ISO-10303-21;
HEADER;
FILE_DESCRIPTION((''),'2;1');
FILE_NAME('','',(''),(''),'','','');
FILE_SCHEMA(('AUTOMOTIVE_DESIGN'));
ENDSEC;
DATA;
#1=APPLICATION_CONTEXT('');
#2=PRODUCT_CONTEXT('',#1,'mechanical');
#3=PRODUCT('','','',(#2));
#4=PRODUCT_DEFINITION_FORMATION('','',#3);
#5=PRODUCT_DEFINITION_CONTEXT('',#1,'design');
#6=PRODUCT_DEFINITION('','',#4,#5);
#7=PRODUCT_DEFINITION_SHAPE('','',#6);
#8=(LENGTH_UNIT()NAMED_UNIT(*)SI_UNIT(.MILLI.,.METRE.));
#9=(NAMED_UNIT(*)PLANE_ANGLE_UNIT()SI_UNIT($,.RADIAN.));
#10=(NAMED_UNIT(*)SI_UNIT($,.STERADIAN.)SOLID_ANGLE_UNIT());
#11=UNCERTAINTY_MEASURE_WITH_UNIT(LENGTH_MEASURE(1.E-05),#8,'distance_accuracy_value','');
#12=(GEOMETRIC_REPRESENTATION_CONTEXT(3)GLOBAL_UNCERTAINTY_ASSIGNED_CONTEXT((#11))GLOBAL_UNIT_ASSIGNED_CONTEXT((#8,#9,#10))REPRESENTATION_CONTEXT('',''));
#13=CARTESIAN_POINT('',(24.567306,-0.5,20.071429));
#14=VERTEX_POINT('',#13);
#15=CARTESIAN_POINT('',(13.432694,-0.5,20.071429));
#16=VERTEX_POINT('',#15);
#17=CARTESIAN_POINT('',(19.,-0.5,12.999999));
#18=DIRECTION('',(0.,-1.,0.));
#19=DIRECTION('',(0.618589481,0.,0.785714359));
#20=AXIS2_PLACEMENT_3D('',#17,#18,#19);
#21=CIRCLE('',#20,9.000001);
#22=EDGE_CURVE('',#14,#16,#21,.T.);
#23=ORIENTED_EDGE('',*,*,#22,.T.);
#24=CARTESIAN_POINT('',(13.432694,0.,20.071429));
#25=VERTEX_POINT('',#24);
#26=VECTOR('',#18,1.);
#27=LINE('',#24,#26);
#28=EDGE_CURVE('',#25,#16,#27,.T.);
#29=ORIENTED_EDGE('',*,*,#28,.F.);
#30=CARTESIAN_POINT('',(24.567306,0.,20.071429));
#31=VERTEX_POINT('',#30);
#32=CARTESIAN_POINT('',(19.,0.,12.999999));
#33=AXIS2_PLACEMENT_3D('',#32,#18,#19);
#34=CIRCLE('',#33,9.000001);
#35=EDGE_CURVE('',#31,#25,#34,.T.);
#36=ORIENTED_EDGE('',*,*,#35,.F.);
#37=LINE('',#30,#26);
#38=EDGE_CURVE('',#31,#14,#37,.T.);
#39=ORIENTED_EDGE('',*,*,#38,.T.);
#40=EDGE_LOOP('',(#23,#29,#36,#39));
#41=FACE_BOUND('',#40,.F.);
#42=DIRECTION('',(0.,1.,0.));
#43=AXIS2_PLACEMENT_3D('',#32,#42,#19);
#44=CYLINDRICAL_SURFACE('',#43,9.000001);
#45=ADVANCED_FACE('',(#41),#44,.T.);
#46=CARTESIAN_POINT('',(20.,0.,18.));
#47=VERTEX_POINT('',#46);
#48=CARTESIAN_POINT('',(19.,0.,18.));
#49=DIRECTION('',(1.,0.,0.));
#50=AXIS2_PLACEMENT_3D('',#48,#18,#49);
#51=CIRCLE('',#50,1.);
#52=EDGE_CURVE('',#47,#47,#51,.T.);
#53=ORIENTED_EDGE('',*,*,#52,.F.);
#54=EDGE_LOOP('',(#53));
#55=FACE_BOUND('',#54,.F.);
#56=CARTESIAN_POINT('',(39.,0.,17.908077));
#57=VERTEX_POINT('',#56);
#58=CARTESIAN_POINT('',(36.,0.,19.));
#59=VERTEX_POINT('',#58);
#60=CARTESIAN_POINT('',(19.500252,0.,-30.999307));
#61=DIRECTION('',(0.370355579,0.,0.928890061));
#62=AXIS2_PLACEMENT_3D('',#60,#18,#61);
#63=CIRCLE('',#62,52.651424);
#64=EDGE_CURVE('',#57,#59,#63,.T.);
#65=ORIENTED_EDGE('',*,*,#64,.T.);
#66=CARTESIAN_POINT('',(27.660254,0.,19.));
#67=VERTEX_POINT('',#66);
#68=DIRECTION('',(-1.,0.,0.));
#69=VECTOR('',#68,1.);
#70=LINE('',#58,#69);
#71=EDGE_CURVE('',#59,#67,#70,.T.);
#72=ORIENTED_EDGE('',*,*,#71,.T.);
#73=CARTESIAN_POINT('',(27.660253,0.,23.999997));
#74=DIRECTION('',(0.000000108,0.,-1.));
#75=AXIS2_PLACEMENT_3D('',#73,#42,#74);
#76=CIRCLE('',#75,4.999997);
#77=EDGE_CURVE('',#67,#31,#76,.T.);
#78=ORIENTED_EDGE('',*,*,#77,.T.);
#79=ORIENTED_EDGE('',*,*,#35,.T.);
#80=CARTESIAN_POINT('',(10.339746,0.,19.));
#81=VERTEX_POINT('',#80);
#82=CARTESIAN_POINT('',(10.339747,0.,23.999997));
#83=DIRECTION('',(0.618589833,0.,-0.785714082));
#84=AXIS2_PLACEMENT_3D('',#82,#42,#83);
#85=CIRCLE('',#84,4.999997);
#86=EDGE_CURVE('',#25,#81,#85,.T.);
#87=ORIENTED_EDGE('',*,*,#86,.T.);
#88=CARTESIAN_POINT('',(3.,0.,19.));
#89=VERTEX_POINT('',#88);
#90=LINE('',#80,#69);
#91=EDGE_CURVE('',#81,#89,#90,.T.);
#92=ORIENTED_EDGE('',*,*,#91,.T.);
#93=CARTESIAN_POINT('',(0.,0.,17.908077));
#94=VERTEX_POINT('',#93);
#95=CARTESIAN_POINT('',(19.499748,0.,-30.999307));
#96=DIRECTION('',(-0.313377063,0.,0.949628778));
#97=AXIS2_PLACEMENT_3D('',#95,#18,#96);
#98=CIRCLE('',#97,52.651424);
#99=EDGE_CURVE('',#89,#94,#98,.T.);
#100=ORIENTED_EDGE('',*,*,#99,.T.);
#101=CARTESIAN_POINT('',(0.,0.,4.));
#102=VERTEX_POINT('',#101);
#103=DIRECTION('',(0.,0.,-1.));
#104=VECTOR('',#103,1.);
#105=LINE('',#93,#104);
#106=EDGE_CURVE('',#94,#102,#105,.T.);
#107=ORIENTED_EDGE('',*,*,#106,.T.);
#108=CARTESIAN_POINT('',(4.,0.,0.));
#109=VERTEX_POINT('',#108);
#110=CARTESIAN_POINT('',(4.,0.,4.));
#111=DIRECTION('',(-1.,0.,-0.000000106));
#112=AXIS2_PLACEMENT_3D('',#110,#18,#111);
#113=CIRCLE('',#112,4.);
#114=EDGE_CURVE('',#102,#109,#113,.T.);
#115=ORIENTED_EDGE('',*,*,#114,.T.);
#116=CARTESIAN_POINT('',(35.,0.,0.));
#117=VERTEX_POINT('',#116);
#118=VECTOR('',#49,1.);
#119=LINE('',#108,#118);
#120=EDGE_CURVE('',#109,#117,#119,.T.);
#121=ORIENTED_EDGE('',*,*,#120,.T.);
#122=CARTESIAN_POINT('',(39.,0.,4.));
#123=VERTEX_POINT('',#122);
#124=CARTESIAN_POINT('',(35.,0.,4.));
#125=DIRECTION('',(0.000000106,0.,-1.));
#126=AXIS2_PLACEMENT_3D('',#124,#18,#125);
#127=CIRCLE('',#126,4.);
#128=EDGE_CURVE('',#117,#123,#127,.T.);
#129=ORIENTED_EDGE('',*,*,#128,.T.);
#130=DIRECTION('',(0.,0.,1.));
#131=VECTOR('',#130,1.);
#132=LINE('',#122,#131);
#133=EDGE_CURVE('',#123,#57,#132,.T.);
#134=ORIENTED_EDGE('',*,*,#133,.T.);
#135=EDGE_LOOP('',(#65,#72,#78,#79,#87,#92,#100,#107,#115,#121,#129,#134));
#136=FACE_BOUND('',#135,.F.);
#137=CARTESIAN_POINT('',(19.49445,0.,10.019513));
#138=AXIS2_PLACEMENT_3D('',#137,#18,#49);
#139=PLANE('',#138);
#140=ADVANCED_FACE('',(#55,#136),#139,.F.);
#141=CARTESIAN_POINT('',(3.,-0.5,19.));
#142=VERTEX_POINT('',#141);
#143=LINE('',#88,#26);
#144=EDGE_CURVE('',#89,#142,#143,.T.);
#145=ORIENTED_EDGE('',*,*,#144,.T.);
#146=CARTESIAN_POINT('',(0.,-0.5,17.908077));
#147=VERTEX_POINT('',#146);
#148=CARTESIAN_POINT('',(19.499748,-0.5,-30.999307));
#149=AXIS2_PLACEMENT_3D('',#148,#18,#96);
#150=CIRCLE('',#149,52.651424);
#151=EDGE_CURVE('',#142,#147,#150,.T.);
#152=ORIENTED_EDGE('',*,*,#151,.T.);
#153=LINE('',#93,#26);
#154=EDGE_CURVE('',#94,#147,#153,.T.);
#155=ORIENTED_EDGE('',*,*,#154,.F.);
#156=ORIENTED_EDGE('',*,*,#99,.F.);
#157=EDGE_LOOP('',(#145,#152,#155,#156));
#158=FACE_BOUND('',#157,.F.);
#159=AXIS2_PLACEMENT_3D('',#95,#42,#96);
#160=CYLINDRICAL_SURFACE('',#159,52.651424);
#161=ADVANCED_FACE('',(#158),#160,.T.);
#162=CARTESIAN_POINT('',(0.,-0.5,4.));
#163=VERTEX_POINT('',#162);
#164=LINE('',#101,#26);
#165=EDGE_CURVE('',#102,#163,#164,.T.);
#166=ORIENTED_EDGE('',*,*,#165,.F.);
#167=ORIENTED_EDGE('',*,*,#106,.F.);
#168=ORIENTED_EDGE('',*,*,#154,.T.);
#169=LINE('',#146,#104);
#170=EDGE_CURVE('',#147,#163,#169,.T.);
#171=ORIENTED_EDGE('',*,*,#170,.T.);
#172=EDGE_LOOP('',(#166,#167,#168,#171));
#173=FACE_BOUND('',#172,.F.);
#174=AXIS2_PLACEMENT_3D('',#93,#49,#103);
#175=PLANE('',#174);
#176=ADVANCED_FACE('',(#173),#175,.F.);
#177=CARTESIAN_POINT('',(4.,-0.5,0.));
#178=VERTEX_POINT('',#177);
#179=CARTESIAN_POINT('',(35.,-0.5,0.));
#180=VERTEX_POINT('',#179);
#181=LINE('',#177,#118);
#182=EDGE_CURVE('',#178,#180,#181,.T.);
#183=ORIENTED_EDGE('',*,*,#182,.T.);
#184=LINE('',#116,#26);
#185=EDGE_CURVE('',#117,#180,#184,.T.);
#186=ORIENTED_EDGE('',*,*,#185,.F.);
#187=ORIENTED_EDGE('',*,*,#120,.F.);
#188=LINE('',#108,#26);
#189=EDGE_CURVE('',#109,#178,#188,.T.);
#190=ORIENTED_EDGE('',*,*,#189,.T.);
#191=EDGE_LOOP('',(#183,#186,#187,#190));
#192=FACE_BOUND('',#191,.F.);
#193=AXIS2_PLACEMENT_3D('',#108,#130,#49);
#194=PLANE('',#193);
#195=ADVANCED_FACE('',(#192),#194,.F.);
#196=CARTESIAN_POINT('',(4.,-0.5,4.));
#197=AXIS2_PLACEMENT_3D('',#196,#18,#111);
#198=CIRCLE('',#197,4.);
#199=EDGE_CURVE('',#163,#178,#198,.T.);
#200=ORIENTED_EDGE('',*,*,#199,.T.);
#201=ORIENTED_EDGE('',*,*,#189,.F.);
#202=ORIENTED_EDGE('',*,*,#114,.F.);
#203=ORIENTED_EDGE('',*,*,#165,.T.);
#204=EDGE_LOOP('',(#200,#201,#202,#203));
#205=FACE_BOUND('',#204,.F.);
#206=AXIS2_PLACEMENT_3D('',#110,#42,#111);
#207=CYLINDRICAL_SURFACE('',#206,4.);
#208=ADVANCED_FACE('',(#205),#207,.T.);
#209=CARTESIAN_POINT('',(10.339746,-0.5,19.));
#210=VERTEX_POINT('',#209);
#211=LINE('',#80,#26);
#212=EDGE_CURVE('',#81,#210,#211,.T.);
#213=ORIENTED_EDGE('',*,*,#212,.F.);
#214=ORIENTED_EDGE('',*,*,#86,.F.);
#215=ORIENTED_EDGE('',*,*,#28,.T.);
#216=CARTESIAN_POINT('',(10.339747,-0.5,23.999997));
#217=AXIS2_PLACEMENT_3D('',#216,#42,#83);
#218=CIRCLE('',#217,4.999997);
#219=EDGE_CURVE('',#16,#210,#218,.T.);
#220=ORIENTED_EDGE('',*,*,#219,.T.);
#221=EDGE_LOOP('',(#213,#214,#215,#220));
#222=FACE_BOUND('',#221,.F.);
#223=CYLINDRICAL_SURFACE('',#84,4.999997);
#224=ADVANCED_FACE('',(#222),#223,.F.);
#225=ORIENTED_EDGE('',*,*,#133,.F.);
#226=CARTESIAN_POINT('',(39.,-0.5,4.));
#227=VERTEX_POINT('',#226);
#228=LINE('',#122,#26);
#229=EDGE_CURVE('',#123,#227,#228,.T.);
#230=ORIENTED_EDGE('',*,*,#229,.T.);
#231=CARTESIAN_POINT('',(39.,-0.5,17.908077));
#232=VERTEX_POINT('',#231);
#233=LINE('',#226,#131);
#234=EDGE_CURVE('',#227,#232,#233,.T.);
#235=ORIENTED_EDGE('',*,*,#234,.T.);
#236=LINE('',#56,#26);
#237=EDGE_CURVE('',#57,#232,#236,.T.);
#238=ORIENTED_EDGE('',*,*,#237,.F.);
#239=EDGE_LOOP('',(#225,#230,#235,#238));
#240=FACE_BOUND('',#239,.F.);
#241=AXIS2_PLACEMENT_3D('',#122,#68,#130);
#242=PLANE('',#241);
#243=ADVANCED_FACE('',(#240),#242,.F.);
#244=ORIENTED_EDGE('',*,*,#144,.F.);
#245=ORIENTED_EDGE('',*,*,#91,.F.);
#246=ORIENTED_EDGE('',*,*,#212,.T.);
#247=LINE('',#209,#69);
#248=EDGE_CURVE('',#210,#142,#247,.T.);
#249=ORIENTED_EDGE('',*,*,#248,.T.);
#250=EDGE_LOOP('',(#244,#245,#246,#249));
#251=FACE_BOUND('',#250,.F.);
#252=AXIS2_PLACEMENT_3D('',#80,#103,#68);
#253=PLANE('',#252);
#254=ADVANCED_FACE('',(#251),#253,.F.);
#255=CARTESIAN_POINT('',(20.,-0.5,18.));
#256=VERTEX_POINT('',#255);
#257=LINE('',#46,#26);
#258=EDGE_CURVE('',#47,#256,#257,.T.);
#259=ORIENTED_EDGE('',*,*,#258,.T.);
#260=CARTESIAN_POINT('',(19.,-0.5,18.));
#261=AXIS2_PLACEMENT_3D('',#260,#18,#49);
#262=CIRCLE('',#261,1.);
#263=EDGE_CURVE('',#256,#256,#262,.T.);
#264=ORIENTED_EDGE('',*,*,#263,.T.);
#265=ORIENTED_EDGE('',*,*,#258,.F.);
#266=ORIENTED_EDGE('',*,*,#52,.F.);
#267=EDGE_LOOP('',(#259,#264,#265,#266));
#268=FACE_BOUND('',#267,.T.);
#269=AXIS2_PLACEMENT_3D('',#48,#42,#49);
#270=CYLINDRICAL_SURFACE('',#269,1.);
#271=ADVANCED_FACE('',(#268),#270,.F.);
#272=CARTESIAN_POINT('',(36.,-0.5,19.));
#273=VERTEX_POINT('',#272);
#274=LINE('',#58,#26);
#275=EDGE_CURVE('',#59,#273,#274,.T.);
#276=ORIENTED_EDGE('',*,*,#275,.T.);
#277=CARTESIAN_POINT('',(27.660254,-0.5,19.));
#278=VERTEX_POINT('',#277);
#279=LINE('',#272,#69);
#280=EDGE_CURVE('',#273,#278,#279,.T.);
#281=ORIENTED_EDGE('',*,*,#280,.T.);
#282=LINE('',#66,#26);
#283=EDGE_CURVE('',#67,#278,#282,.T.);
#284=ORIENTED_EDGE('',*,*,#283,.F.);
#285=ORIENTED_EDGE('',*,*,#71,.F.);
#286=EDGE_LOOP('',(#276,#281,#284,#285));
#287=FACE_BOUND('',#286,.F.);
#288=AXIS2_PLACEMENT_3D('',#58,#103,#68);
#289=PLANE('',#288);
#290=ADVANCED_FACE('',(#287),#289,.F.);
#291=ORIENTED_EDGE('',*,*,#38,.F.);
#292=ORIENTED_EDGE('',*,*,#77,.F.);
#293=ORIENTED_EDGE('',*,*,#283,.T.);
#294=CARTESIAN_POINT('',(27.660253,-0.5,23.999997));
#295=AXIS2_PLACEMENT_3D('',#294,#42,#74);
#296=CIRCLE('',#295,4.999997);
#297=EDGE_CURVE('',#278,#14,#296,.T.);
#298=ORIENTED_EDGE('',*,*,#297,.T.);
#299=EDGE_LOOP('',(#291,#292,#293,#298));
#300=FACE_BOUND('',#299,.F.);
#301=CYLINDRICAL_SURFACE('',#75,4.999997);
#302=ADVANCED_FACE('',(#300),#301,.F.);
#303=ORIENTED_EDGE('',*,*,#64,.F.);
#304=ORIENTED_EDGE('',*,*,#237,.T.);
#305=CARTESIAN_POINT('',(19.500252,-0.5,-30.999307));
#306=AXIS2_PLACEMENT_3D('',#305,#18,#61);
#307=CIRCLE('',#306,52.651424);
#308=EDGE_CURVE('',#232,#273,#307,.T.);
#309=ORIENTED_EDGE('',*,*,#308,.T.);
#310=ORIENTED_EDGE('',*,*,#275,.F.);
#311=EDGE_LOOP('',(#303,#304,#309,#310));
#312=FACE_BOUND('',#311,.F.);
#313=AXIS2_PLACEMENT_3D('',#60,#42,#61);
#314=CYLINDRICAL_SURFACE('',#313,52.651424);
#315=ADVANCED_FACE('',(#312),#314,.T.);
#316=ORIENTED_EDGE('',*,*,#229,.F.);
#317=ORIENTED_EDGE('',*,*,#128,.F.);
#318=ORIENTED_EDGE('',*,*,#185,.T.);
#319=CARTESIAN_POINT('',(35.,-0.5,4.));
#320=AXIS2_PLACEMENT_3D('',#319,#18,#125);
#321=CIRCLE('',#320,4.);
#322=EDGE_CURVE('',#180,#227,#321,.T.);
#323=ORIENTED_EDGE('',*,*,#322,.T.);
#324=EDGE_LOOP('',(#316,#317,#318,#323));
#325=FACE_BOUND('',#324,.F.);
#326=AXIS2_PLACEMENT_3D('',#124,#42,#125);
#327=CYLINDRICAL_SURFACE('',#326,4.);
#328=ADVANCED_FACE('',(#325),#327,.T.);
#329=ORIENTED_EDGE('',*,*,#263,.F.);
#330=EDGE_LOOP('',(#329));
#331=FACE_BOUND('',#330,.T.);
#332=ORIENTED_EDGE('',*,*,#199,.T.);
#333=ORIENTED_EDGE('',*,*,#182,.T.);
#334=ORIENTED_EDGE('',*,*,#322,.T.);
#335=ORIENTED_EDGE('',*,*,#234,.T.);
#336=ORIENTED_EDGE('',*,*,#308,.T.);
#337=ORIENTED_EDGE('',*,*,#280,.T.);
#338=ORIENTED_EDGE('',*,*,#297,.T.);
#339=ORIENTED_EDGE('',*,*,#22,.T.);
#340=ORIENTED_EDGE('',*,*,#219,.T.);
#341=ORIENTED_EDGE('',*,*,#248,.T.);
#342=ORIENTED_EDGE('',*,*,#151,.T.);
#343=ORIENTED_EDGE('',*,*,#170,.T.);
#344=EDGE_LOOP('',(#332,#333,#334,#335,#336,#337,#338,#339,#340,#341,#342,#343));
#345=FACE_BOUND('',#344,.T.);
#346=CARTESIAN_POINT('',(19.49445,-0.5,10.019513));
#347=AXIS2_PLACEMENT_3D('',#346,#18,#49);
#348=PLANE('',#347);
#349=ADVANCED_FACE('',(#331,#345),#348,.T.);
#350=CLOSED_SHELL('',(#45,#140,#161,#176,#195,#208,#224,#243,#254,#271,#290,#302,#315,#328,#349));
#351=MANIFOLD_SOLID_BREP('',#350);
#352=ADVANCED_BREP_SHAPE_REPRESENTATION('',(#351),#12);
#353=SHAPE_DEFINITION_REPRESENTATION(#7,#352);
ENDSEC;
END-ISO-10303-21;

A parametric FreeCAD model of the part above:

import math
import FreeCAD as App
import Part
import Sketcher

V = App.Vector

doc = App.newDocument("Part")
body = doc.addObject("PartDesign::Body", "Body")

sketch1 = doc.addObject("Sketcher::SketchObject", "Sketch")
body.addObject(sketch1)
sketch1.AttachmentSupport = (doc.XZ_Plane, [""])
sketch1.MapMode = "FlatFace"
sketch1.addGeometry(Part.ArcOfCircle(Part.Circle(V(4, 4, 0), V(0, 0, 1), 4), math.radians(-179.999994), math.radians(-90.000006)), False)
sketch1.addGeometry(Part.LineSegment(V(4, 0, 0), V(35, 0, 0)), False)
sketch1.addGeometry(Part.ArcOfCircle(Part.Circle(V(35, 4, 0), V(0, 0, 1), 4), math.radians(-89.999994), math.radians(-0.000006)), False)
sketch1.addGeometry(Part.LineSegment(V(39, 4, 0), V(39, 17.908077, 0)), False)
sketch1.addGeometry(Part.ArcOfCircle(Part.Circle(V(19.500252, -30.999307, 0), V(0, 0, 1), 52.651424), math.radians(68.262452), math.radians(71.737134)), False)
sketch1.addGeometry(Part.LineSegment(V(36, 19, 0), V(27.660254, 19, 0)), False)
sketch1.addGeometry(Part.ArcOfCircle(Part.Circle(V(27.660253, 23.999997, 0), V(0, 0, 1), 4.999997), math.radians(-128.21323), math.radians(-89.999994)), False)
sketch1.addGeometry(Part.ArcOfCircle(Part.Circle(V(19, 12.999999, 0), V(0, 0, 1), 9.000001), math.radians(51.786796), math.radians(128.213204)), False)
sketch1.addGeometry(Part.ArcOfCircle(Part.Circle(V(10.339747, 23.999997, 0), V(0, 0, 1), 4.999997), math.radians(-90.000006), math.radians(-51.78677)), False)
sketch1.addGeometry(Part.LineSegment(V(10.339746, 19, 0), V(3, 19, 0)), False)
sketch1.addGeometry(Part.ArcOfCircle(Part.Circle(V(19.499748, -30.999307, 0), V(0, 0, 1), 52.651424), math.radians(108.262866), math.radians(111.737548)), False)
sketch1.addGeometry(Part.LineSegment(V(0, 17.908077, 0), V(0, 4, 0)), False)
sketch1.addGeometry(Part.Circle(V(19, 18, 0), V(0, 0, 1), 1), False)
sketch1.addConstraint(Sketcher.Constraint("Tangent", 0, 2, 1, 1))
sketch1.addConstraint(Sketcher.Constraint("Tangent", 1, 2, 2, 1))
sketch1.addConstraint(Sketcher.Constraint("Tangent", 2, 2, 3, 1))
sketch1.addConstraint(Sketcher.Constraint("Coincident", 3, 2, 4, 1))
sketch1.addConstraint(Sketcher.Constraint("Coincident", 4, 2, 5, 1))
sketch1.addConstraint(Sketcher.Constraint("Tangent", 5, 2, 6, 2))
sketch1.addConstraint(Sketcher.Constraint("Tangent", 6, 1, 7, 1))
sketch1.addConstraint(Sketcher.Constraint("Tangent", 7, 2, 8, 2))
sketch1.addConstraint(Sketcher.Constraint("Tangent", 8, 1, 9, 1))
sketch1.addConstraint(Sketcher.Constraint("Coincident", 9, 2, 10, 1))
sketch1.addConstraint(Sketcher.Constraint("Coincident", 10, 2, 11, 1))
sketch1.addConstraint(Sketcher.Constraint("Tangent", 11, 2, 0, 1))
sketch1.addConstraint(Sketcher.Constraint("Horizontal", 1))
sketch1.addConstraint(Sketcher.Constraint("Vertical", 3))
sketch1.addConstraint(Sketcher.Constraint("Horizontal", 5))
sketch1.addConstraint(Sketcher.Constraint("Horizontal", 9))
sketch1.addConstraint(Sketcher.Constraint("Vertical", 11))
sketch1.addConstraint(Sketcher.Constraint("Equal", 0, 2))
sketch1.addConstraint(Sketcher.Constraint("Equal", 6, 8))
sketch1.addConstraint(Sketcher.Constraint("Equal", 4, 10))
sketch1.addConstraint(Sketcher.Constraint("PointOnObject", 0, 2, -1))
sketch1.addConstraint(Sketcher.Constraint("PointOnObject", 10, 2, -2))
sketch1.addConstraint(Sketcher.Constraint("Horizontal", 6, 3, 8, 3))
sketch1.addConstraint(Sketcher.Constraint("Horizontal", 4, 3, 10, 3))
sketch1.addConstraint(Sketcher.Constraint("Horizontal", 3, 2, 10, 2))
sketch1.addConstraint(Sketcher.Constraint("Vertical", 7, 3, 12, 3))
sketch1.addConstraint(Sketcher.Constraint("Diameter", 12, 2.0))
sketch1.addConstraint(Sketcher.Constraint("Radius", 0, 4.0))
sketch1.addConstraint(Sketcher.Constraint("Radius", 7, 9.000001))
sketch1.addConstraint(Sketcher.Constraint("DistanceX", 1, 1, 1, 2, 31.0))
sketch1.addConstraint(Sketcher.Constraint("DistanceX", -1, 1, 7, 3, 19.0))
sketch1.addConstraint(Sketcher.Constraint("DistanceY", -1, 1, 7, 3, 12.999999))
sketch1.addConstraint(Sketcher.Constraint("DistanceY", -1, 1, 12, 3, 18.0))
sketch1.addConstraint(Sketcher.Constraint("DistanceX", -1, 1, 4, 2, 36.0))
sketch1.addConstraint(Sketcher.Constraint("DistanceY", -1, 1, 4, 2, 19.0))
sketch1.addConstraint(Sketcher.Constraint("DistanceY", 7, 3, 6, 3, 10.999998))
sketch1.addConstraint(Sketcher.Constraint("DistanceX", 4, 3, 6, 3, 8.160002))
sketch1.addConstraint(Sketcher.Constraint("Radius", 4, 52.651424))
pad1 = doc.addObject("PartDesign::Pad", "Pad")
body.addObject(pad1)
pad1.Profile = sketch1
pad1.Length = 0.5

doc.recompute()
